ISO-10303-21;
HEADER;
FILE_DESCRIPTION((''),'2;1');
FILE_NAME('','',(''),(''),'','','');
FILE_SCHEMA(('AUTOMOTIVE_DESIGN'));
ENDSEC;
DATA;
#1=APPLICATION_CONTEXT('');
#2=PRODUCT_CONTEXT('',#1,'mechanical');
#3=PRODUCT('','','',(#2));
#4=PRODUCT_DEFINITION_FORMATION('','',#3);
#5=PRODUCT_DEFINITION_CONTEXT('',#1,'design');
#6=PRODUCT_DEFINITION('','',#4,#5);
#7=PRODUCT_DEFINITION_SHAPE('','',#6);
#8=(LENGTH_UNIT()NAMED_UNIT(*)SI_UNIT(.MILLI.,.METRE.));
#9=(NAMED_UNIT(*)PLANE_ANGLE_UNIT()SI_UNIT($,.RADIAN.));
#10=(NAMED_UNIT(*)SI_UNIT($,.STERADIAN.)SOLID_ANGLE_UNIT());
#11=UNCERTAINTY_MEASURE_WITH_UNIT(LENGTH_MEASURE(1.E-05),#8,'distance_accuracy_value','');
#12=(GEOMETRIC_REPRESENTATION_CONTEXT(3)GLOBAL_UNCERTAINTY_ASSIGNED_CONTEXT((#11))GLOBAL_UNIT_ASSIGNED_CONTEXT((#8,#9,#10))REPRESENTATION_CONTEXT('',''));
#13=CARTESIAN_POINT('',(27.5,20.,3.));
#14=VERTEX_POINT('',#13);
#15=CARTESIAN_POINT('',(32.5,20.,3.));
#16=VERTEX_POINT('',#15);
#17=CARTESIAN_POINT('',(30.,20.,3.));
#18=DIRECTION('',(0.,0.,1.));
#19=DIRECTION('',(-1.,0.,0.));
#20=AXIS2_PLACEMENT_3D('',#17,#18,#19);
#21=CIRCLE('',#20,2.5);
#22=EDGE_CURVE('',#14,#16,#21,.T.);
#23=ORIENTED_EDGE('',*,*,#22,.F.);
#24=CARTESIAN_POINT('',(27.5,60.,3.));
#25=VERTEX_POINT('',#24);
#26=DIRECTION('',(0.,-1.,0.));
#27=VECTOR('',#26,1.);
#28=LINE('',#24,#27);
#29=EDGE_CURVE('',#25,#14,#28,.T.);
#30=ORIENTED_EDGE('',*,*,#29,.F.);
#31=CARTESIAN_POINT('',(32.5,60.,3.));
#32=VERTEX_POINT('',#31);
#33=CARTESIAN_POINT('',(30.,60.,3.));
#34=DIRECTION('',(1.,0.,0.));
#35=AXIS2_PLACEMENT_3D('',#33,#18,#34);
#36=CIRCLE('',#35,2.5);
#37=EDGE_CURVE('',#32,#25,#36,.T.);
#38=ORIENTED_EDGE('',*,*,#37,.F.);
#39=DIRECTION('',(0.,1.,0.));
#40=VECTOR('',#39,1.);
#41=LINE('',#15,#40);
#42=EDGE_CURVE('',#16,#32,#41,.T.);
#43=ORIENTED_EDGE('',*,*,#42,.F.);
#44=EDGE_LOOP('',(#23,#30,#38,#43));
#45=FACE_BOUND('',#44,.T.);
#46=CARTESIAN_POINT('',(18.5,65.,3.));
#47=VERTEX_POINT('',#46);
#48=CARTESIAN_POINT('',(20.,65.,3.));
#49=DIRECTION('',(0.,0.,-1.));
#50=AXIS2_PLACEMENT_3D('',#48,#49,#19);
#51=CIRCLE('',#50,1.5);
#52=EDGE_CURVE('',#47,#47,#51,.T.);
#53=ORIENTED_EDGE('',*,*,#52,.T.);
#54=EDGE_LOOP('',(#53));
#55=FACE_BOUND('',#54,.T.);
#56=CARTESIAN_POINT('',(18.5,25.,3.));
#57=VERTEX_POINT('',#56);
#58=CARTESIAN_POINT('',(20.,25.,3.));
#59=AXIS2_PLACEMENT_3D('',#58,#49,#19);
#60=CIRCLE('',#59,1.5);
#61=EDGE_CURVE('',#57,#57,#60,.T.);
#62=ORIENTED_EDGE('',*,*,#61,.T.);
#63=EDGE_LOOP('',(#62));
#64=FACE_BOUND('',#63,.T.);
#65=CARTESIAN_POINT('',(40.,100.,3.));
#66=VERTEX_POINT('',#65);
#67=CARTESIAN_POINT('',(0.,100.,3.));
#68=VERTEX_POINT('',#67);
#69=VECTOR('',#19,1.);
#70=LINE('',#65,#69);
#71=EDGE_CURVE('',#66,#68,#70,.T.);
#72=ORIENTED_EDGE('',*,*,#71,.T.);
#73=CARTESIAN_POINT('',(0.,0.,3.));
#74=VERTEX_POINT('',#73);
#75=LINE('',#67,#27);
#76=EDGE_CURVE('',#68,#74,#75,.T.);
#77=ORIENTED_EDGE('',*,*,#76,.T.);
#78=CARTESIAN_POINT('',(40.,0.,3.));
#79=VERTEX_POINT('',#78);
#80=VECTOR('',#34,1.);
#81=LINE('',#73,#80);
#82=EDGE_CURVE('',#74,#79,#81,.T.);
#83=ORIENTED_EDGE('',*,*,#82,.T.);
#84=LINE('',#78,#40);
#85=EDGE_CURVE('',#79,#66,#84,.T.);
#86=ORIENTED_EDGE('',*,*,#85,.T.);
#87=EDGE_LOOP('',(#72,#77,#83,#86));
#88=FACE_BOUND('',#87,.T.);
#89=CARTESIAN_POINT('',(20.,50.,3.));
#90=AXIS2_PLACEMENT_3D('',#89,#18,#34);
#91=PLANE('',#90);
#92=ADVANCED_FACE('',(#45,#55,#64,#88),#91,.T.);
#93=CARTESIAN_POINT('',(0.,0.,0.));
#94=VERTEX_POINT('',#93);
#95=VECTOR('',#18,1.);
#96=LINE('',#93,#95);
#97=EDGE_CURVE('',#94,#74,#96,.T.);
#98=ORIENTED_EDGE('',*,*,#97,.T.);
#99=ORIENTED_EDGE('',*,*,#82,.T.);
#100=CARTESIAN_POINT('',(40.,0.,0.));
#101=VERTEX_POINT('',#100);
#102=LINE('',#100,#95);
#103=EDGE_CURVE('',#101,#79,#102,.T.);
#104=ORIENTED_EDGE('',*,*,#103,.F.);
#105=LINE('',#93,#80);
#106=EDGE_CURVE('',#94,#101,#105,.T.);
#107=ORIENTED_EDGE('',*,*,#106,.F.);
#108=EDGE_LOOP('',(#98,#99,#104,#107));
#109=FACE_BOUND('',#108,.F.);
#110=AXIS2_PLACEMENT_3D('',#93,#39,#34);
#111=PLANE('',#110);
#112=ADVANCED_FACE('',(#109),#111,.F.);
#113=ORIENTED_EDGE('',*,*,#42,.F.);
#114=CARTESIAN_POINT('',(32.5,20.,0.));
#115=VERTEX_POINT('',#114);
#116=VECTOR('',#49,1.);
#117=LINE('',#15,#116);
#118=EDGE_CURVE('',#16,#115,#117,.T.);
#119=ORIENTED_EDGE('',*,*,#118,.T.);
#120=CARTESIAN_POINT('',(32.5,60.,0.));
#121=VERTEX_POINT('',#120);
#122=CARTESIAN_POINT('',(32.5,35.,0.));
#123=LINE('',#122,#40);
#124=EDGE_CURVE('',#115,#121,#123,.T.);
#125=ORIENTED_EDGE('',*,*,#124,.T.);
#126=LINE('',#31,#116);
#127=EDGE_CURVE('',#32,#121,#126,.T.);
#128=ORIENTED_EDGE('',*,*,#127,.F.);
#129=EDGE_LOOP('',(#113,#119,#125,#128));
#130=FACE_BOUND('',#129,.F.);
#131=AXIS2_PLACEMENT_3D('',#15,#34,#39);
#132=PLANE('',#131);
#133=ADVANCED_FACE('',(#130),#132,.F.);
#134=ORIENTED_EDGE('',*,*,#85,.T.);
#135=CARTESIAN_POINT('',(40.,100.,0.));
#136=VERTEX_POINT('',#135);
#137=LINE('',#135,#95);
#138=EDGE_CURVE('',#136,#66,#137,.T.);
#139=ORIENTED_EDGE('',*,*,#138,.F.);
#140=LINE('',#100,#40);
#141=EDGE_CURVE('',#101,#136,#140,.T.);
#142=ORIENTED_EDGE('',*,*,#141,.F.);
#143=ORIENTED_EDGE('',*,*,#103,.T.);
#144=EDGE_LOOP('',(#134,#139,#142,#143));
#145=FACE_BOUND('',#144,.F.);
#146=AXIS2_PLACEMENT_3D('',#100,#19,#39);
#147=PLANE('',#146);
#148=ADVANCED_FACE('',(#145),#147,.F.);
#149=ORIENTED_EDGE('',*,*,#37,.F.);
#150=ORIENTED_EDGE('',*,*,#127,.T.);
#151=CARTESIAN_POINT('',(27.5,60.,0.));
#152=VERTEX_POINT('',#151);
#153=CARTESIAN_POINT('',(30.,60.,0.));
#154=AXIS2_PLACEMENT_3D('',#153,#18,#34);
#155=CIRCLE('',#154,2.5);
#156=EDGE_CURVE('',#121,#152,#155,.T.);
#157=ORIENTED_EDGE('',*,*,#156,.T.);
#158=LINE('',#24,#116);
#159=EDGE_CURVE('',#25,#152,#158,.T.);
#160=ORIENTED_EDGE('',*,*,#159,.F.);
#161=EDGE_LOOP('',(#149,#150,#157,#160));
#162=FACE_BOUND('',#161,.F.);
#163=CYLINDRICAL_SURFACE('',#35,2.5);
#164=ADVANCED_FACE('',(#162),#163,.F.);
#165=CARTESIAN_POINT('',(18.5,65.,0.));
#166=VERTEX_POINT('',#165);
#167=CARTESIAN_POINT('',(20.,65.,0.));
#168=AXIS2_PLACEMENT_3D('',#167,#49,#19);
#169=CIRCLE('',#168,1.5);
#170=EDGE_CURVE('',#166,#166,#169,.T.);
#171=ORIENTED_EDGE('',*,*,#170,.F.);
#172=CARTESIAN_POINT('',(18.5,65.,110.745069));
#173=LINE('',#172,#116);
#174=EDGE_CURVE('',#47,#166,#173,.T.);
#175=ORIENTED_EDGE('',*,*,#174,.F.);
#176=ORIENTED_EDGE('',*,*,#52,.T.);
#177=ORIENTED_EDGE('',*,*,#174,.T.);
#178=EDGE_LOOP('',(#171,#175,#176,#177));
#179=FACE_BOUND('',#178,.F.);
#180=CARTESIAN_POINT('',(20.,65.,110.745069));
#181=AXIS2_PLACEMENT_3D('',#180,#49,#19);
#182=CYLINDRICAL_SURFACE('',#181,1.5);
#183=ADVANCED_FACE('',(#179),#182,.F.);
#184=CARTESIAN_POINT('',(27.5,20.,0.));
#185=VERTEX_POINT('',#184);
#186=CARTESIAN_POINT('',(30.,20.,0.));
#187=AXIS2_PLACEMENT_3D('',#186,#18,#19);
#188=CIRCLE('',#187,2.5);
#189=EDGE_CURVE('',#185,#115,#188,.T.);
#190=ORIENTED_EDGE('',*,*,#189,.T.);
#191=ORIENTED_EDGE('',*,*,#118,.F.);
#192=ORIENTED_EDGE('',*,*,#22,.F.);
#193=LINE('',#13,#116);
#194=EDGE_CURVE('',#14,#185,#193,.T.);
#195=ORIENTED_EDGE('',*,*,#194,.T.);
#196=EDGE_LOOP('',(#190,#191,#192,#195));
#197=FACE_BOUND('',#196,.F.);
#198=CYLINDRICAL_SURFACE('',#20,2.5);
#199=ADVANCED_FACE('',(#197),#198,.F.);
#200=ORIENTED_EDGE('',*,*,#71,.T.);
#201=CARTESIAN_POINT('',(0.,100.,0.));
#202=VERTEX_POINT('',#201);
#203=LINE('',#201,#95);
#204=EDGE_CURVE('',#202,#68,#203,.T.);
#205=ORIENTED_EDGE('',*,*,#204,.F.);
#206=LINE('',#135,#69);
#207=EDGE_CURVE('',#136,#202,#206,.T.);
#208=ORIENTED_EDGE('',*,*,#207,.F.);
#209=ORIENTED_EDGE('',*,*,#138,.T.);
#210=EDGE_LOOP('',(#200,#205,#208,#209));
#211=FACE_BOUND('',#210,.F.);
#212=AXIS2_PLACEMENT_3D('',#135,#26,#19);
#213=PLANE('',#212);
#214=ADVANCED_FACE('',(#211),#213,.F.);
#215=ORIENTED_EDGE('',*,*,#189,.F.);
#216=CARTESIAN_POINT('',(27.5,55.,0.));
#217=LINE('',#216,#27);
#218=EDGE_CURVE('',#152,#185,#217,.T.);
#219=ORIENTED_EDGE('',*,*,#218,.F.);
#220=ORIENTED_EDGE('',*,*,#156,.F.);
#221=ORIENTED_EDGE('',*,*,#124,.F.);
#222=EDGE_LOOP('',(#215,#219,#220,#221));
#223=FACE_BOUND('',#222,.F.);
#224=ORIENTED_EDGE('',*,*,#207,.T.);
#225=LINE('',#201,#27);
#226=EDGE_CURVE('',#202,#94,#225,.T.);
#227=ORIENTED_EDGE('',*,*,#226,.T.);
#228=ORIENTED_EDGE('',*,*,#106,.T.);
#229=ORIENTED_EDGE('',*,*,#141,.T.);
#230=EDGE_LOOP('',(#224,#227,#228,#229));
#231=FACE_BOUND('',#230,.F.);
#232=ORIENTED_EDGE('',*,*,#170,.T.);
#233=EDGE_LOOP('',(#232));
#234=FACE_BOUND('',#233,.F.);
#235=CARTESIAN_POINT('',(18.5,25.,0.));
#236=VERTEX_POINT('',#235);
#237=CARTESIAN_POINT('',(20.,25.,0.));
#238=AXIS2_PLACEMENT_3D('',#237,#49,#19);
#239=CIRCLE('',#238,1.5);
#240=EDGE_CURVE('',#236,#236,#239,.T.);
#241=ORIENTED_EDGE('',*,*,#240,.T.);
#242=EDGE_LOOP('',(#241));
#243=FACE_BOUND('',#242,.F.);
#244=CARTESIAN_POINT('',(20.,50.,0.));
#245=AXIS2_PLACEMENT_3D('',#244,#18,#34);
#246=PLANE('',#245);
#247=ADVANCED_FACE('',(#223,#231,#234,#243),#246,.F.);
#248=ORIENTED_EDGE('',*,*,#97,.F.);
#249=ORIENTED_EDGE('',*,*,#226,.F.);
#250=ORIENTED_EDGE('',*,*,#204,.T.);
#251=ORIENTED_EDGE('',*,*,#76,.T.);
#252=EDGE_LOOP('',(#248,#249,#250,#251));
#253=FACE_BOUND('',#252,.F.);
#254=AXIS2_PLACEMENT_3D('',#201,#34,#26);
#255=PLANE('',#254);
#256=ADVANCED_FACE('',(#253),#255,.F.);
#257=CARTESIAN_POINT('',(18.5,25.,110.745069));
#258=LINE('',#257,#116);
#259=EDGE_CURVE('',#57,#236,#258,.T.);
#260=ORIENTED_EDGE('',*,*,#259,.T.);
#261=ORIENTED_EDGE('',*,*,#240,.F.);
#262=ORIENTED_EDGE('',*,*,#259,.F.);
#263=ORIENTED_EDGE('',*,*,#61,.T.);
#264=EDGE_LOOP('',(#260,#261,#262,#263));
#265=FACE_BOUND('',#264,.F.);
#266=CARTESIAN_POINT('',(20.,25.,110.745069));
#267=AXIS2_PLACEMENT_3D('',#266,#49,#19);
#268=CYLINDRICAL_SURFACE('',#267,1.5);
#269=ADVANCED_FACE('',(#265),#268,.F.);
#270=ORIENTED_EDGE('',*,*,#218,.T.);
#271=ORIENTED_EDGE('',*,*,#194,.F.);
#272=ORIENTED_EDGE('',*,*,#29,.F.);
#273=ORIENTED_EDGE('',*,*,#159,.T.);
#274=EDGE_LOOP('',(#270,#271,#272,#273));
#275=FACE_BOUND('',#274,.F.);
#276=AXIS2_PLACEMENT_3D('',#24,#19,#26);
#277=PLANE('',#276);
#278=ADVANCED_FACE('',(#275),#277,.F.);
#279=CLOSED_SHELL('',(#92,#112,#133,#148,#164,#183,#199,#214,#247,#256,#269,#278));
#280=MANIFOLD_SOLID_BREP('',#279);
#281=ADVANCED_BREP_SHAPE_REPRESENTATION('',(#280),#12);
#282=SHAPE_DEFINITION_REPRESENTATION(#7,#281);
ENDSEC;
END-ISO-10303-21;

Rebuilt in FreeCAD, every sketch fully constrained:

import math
import FreeCAD as App
import Part
import Sketcher

V = App.Vector


def add_polygon(sketch, points):
    """Adds a closed chain of lines whose ends are joined by coincident constraints."""
    first, n = sketch.GeometryCount, len(points)
    for a, b in zip(points, points[1:] + points[:1]):
        sketch.addGeometry(Part.LineSegment(App.Vector(*a, 0), App.Vector(*b, 0)), False)
    for i in range(n):
        sketch.addConstraint(Sketcher.Constraint("Coincident", first + i, 2, first + (i + 1) % n, 1))

doc = App.newDocument("Part")
body = doc.addObject("PartDesign::Body", "Body")

# Sketch on XY plane
sketch1 = body.newObject("Sketcher::SketchObject", "Sketch")
sketch1.AttachmentSupport = (doc.getObject("XY_Plane"), [""])
sketch1.MapMode = "FlatFace"
add_polygon(sketch1, [(0, 100), (0, 0), (40, 0), (40, 100)])  # lines 0-3
sketch1.addConstraint(Sketcher.Constraint("Vertical", 0))
sketch1.addConstraint(Sketcher.Constraint("Horizontal", 1))
sketch1.addConstraint(Sketcher.Constraint("Vertical", 2))
sketch1.addConstraint(Sketcher.Constraint("Horizontal", 3))
sketch1.addConstraint(Sketcher.Constraint("Coincident", 0, 2, -1, 1))
sketch1.addConstraint(Sketcher.Constraint("DistanceX", 1, 1, 1, 2, 40.0))
sketch1.addConstraint(Sketcher.Constraint("DistanceY", 0, 2, 0, 1, 100.0))
pad1 = body.newObject("PartDesign::Pad", "Pad")
pad1.Profile = sketch1
pad1.Length = 3

# Sketch on XY plane
sketch2 = body.newObject("Sketcher::SketchObject", "Sketch001")
sketch2.AttachmentSupport = (doc.getObject("XY_Plane"), [""])
sketch2.MapMode = "FlatFace"
sketch2.AttachmentOffset = App.Placement(V(0, 0, 3), App.Rotation())
sketch2.addGeometry(Part.Circle(V(20, 65, 0), V(0, 0, 1), 1.5), False)
sketch2.addGeometry(Part.Circle(V(20, 25, 0), V(0, 0, 1), 1.5), False)
sketch2.addConstraint(Sketcher.Constraint("Equal", 0, 1))
sketch2.addConstraint(Sketcher.Constraint("Vertical", 0, 3, 1, 3))
sketch2.addConstraint(Sketcher.Constraint("Diameter", 0, 3.0))
sketch2.addConstraint(Sketcher.Constraint("DistanceX", -1, 1, 0, 3, 20.0))
sketch2.addConstraint(Sketcher.Constraint("DistanceY", -1, 1, 0, 3, 65.0))
sketch2.addConstraint(Sketcher.Constraint("DistanceY", -1, 1, 1, 3, 25.0))
doc.recompute()
hole = body.newObject("PartDesign::Hole", "Hole")
hole.Profile = sketch2
hole.ThreadType = "None"
hole.Diameter = 3
hole.DepthType = "ThroughAll"

# Sketch on XY plane
sketch3 = body.newObject("Sketcher::SketchObject", "Sketch002")
sketch3.AttachmentSupport = (doc.getObject("XY_Plane"), [""])
sketch3.MapMode = "FlatFace"
sketch3.AttachmentOffset = App.Placement(V(0, 0, 3), App.Rotation())
sketch3.addGeometry(Part.ArcOfCircle(Part.Circle(V(30, 20, 0), V(0, 0, 1), 2.5), math.radians(180), math.radians(360)), False)
sketch3.addGeometry(Part.LineSegment(V(32.5, 20, 0), V(32.5, 60, 0)), False)
sketch3.addGeometry(Part.ArcOfCircle(Part.Circle(V(30, 60, 0), V(0, 0, 1), 2.5), math.radians(0), math.radians(180)), False)
sketch3.addGeometry(Part.LineSegment(V(27.5, 60, 0), V(27.5, 20, 0)), False)
sketch3.addConstraint(Sketcher.Constraint("Tangent", 0, 2, 1, 1))
sketch3.addConstraint(Sketcher.Constraint("Tangent", 1, 2, 2, 1))
sketch3.addConstraint(Sketcher.Constraint("Tangent", 2, 2, 3, 1))
sketch3.addConstraint(Sketcher.Constraint("Tangent", 3, 2, 0, 1))
sketch3.addConstraint(Sketcher.Constraint("Vertical", 1))
sketch3.addConstraint(Sketcher.Constraint("Vertical", 3))
sketch3.addConstraint(Sketcher.Constraint("Radius", 0, 2.5))
sketch3.addConstraint(Sketcher.Constraint("DistanceY", 1, 1, 1, 2, 40.0))
sketch3.addConstraint(Sketcher.Constraint("DistanceX", -1, 1, 0, 3, 30.0))
sketch3.addConstraint(Sketcher.Constraint("DistanceY", -1, 1, 0, 3, 20.0))
pocket1 = body.newObject("PartDesign::Pocket", "Pocket")
pocket1.Profile = sketch3
pocket1.Length = 25

doc.recompute()
